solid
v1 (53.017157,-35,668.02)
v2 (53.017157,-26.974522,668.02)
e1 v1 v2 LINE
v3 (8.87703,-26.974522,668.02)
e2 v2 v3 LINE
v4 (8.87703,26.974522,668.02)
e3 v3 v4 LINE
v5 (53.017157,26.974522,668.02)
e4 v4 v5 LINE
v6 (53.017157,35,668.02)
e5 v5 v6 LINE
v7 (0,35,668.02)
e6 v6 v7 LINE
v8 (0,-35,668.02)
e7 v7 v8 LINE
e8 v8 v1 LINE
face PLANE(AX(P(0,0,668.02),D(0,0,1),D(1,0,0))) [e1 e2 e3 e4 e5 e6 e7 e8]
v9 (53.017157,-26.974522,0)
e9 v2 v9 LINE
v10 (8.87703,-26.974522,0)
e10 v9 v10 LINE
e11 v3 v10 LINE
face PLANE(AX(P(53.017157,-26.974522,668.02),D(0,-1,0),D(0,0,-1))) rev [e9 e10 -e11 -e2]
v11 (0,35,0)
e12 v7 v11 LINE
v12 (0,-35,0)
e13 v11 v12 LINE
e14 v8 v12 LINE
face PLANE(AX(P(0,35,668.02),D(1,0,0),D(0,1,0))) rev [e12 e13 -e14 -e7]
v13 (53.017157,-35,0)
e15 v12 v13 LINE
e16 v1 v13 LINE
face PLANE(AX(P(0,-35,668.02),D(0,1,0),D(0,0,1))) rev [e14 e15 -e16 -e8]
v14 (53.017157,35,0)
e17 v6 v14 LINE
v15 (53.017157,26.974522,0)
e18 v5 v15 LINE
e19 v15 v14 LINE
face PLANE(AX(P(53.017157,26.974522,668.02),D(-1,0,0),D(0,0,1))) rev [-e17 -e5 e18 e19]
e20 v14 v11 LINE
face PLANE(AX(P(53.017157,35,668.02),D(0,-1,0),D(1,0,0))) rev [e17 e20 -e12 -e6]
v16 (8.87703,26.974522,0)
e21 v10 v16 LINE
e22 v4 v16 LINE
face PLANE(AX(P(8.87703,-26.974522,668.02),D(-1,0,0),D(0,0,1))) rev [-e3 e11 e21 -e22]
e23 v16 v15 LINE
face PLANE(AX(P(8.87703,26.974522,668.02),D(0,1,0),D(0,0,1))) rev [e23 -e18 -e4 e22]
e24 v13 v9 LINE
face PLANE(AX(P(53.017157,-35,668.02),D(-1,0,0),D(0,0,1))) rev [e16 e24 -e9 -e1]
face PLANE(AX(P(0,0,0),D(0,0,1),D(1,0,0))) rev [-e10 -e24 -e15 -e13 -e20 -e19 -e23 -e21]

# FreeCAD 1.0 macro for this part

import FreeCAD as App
import Part
import Sketcher
from FreeCAD import Vector


def add_polygon(sketch, points):
    """Adds a closed chain of lines whose ends are joined by coincident constraints."""
    first, n = sketch.GeometryCount, len(points)
    for a, b in zip(points, points[1:] + points[:1]):
        sketch.addGeometry(Part.LineSegment(App.Vector(*a, 0), App.Vector(*b, 0)), False)
    for i in range(n):
        sketch.addConstraint(Sketcher.Constraint("Coincident", first + i, 2, first + (i + 1) % n, 1))

doc = App.newDocument("Part")
body = doc.addObject("PartDesign::Body", "Body")

# Sketch on XY plane
sketch1 = body.newObject("Sketcher::SketchObject", "Sketch")
sketch1.AttachmentSupport = (doc.getObject("XY_Plane"), [""])
sketch1.MapMode = "FlatFace"
add_polygon(sketch1, [(0, 35), (0, -35), (53, -35), (53, -27), (9, -27), (9, 27), (53, 27), (53, 35)])  # lines 0-7
sketch1.addConstraint([
    Sketcher.Constraint("Vertical", 0),
    Sketcher.Constraint("Horizontal", 1),
    Sketcher.Constraint("Vertical", 2),
    Sketcher.Constraint("Horizontal", 3),
    Sketcher.Constraint("Vertical", 4),
    Sketcher.Constraint("Horizontal", 5),
    Sketcher.Constraint("Vertical", 6),
    Sketcher.Constraint("Horizontal", 7),
    Sketcher.Constraint("Symmetric", 0, 2, 7, 2, -1, 1),
    Sketcher.Constraint("Symmetric", 2, 2, 5, 2, -1),
    Sketcher.Constraint("DistanceY", 0, 2, 0, 1, 70.0),
    Sketcher.Constraint("DistanceX", 1, 1, 1, 2, 53.017157),
    Sketcher.Constraint("DistanceX", 3, 2, 3, 1, 44.140127),
    Sketcher.Constraint("DistanceY", 2, 1, 2, 2, 8.025478),
])
pad1 = body.newObject("PartDesign::Pad", "Pad")
pad1.Profile = sketch1
pad1.Length = 668.02

doc.recompute()
